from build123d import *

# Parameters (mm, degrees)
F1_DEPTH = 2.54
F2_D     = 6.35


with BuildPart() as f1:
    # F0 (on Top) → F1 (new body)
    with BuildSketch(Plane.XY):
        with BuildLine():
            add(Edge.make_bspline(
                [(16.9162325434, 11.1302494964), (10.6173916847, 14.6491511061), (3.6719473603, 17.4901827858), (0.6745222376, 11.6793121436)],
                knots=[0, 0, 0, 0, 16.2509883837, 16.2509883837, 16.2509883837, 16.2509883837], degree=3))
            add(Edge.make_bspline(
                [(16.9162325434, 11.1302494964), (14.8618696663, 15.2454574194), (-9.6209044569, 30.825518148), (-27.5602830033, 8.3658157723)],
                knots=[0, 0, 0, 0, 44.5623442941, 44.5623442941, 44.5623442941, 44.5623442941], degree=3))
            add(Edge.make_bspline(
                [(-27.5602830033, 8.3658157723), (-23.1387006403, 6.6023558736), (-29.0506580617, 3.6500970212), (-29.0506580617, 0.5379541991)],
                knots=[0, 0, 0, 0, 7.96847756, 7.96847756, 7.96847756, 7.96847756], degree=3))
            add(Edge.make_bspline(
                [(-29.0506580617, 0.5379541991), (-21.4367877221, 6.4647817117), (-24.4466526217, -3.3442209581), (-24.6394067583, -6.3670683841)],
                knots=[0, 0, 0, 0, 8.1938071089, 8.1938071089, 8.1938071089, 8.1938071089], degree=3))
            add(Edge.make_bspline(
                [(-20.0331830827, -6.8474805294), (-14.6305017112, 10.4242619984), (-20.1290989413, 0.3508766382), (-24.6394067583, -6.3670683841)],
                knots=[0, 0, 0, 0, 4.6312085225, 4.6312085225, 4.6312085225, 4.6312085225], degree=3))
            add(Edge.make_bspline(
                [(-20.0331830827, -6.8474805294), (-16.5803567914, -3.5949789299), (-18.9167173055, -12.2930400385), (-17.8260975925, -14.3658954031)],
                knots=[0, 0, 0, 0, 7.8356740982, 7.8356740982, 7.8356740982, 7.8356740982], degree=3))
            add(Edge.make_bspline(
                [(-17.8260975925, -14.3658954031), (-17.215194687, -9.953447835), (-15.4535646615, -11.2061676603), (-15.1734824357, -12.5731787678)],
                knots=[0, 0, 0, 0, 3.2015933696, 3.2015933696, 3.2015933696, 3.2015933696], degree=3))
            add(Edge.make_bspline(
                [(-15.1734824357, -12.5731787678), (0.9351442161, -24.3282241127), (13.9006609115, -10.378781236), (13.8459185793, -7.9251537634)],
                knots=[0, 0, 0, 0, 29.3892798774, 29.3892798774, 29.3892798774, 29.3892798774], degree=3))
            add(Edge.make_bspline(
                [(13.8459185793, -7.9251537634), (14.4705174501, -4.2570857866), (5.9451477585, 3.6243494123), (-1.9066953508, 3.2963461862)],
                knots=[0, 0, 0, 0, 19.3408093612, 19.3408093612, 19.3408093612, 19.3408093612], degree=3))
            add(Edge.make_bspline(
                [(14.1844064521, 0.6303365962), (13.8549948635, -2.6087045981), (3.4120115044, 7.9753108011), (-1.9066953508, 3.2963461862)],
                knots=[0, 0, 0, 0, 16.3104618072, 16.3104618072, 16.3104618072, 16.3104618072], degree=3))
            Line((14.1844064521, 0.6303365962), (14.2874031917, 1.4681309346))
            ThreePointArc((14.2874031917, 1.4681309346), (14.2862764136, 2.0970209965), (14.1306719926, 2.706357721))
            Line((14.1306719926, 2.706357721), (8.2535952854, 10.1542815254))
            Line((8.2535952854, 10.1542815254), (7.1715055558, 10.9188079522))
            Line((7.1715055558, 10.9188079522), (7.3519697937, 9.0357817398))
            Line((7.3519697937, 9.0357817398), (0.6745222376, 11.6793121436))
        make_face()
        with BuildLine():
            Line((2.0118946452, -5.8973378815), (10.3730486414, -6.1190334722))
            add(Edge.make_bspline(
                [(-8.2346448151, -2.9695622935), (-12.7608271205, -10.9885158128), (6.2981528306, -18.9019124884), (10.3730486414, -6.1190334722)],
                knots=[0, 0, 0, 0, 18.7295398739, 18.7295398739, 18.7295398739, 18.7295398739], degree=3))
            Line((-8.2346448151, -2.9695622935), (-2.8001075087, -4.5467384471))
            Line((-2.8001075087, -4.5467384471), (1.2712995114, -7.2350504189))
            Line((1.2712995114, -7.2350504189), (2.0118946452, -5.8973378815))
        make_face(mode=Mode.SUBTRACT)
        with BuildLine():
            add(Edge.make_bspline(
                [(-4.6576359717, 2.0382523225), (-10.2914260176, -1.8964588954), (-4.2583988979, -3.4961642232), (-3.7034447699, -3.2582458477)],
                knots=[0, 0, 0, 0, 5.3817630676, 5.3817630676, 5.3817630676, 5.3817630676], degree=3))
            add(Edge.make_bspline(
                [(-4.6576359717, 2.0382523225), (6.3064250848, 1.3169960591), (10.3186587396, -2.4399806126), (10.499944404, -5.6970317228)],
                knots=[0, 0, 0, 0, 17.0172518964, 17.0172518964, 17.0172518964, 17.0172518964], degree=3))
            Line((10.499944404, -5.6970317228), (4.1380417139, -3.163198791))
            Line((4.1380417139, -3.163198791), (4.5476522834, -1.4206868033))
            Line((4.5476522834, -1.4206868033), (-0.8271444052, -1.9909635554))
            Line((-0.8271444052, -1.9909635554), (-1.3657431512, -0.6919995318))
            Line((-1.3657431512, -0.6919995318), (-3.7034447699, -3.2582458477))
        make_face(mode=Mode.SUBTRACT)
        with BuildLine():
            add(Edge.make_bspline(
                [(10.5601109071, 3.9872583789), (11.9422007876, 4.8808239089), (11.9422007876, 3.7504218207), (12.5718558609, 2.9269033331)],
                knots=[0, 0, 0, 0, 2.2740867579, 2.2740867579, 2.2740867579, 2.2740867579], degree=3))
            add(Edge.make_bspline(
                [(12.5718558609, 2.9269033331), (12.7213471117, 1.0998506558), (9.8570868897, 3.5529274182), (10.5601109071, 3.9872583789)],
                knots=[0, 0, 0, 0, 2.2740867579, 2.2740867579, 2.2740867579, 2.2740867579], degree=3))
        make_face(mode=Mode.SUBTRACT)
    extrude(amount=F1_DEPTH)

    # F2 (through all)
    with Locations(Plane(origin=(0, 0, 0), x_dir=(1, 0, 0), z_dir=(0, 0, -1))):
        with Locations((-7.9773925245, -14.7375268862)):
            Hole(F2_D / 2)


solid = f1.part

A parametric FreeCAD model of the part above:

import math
import FreeCAD as App
import Part
import Sketcher

V = App.Vector
Q = App.Units.Quantity

doc = App.newDocument("Part")
params = doc.addObject("Spreadsheet::Sheet", "Params")
for row, (alias, value) in enumerate([
    ("sketch1_radius", "0.1 in"),
    ("pad1_length", "0.1 in"),
    ("sketch2_diameter", "0.25 in"),
    ("hole_diameter", "0.25 in"),
], start=1):
    params.set(f"A{row}", alias)
    params.set(f"B{row}", "=" + value)
    params.setAlias(f"B{row}", alias)

body = doc.addObject("PartDesign::Body", "Body")

# Sketch on XY plane
sketch1 = body.newObject("Sketcher::SketchObject", "Sketch")
sketch1.AttachmentSupport = (doc.getObject("XY_Plane"), [""])
sketch1.MapMode = "FlatFace"
sketch1.addGeometry(Part.BSplineCurve([V(16.916233, 11.130249, 0), V(10.617392, 14.649151, 0), V(3.671947, 17.490183, 0), V(0.674522, 11.679312, 0)], [4, 4], [0, 16.250988384], False, 3, [1, 1, 1, 1], False), False)
sketch1.addGeometry(Part.BSplineCurve([V(16.916233, 11.130249, 0), V(14.86187, 15.245457, 0), V(-9.620904, 30.825518, 0), V(-27.560283, 8.365816, 0)], [4, 4], [0, 44.562344294], False, 3, [1, 1, 1, 1], False), False)
sketch1.addGeometry(Part.BSplineCurve([V(-27.560283, 8.365816, 0), V(-23.138701, 6.602356, 0), V(-29.050658, 3.650097, 0), V(-29.050658, 0.537954, 0)], [4, 4], [0, 7.96847756], False, 3, [1, 1, 1, 1], False), False)
sketch1.addGeometry(Part.BSplineCurve([V(-29.050658, 0.537954, 0), V(-21.436788, 6.464782, 0), V(-24.446653, -3.344221, 0), V(-24.639407, -6.367068, 0)], [4, 4], [0, 8.193807109], False, 3, [1, 1, 1, 1], False), False)
sketch1.addGeometry(Part.BSplineCurve([V(-20.033183, -6.847481, 0), V(-14.630502, 10.424262, 0), V(-20.129099, 0.350877, 0), V(-24.639407, -6.367068, 0)], [4, 4], [0, 4.631208522], False, 3, [1, 1, 1, 1], False), False)
sketch1.addGeometry(Part.BSplineCurve([V(-20.033183, -6.847481, 0), V(-16.580357, -3.594979, 0), V(-18.916717, -12.29304, 0), V(-17.826098, -14.365895, 0)], [4, 4], [0, 7.835674098], False, 3, [1, 1, 1, 1], False), False)
sketch1.addGeometry(Part.BSplineCurve([V(-17.826098, -14.365895, 0), V(-17.215195, -9.953448, 0), V(-15.453565, -11.206168, 0), V(-15.173482, -12.573179, 0)], [4, 4], [0, 3.20159337], False, 3, [1, 1, 1, 1], False), False)
sketch1.addGeometry(Part.BSplineCurve([V(-15.173482, -12.573179, 0), V(0.935144, -24.328224, 0), V(13.900661, -10.378781, 0), V(13.845919, -7.925154, 0)], [4, 4], [0, 29.389279877], False, 3, [1, 1, 1, 1], False), False)
sketch1.addGeometry(Part.BSplineCurve([V(13.845919, -7.925154, 0), V(14.470517, -4.257086, 0), V(5.945148, 3.624349, 0), V(-1.906695, 3.296346, 0)], [4, 4], [0, 19.340809361], False, 3, [1, 1, 1, 1], False), False)
sketch1.addGeometry(Part.BSplineCurve([V(14.184406, 0.630337, 0), V(13.854995, -2.608705, 0), V(3.412012, 7.975311, 0), V(-1.906695, 3.296346, 0)], [4, 4], [0, 16.310461807], False, 3, [1, 1, 1, 1], False), False)
sketch1.addGeometry(Part.LineSegment(V(14.184406, 0.630337, 0), V(14.287403, 1.468131, 0)), False)
sketch1.addGeometry(Part.ArcOfCircle(Part.Circle(V(11.766383, 1.77806, 0), V(0, 0, 1), 2.54), math.radians(-7.008659), math.radians(21.436603)), False)
sketch1.addGeometry(Part.LineSegment(V(14.130672, 2.706358, 0), V(8.253595, 10.154282, 0)), False)
sketch1.addGeometry(Part.LineSegment(V(8.253595, 10.154282, 0), V(7.171506, 10.918808, 0)), False)
sketch1.addGeometry(Part.LineSegment(V(7.171506, 10.918808, 0), V(7.35197, 9.035782, 0)), False)
sketch1.addGeometry(Part.LineSegment(V(7.35197, 9.035782, 0), V(0.674522, 11.679312, 0)), False)
sketch1.addGeometry(Part.LineSegment(V(2.011895, -5.897338, 0), V(10.373049, -6.119033, 0)), False)
sketch1.addGeometry(Part.BSplineCurve([V(-8.234645, -2.969562, 0), V(-12.760827, -10.988516, 0), V(6.298153, -18.901912, 0), V(10.373049, -6.119033, 0)], [4, 4], [0, 18.729539874], False, 3, [1, 1, 1, 1], False), False)
sketch1.addGeometry(Part.LineSegment(V(-8.234645, -2.969562, 0), V(-2.800108, -4.546738, 0)), False)
sketch1.addGeometry(Part.LineSegment(V(-2.800108, -4.546738, 0), V(1.2713, -7.23505, 0)), False)
sketch1.addGeometry(Part.LineSegment(V(1.2713, -7.23505, 0), V(2.011895, -5.897338, 0)), False)
sketch1.addGeometry(Part.BSplineCurve([V(-4.657636, 2.038252, 0), V(6.306425, 1.316996, 0), V(10.318659, -2.439981, 0), V(10.499944, -5.697032, 0)], [4, 4], [0, 17.017251896], False, 3, [1, 1, 1, 1], False), False)
sketch1.addGeometry(Part.LineSegment(V(10.499944, -5.697032, 0), V(4.138042, -3.163199, 0)), False)
sketch1.addGeometry(Part.LineSegment(V(4.138042, -3.163199, 0), V(4.547652, -1.420687, 0)), False)
sketch1.addGeometry(Part.LineSegment(V(4.547652, -1.420687, 0), V(-0.827144, -1.990964, 0)), False)
sketch1.addGeometry(Part.LineSegment(V(-0.827144, -1.990964, 0), V(-1.365743, -0.692, 0)), False)
sketch1.addGeometry(Part.LineSegment(V(-1.365743, -0.692, 0), V(-3.703445, -3.258246, 0)), False)
sketch1.addGeometry(Part.BSplineCurve([V(-4.657636, 2.038252, 0), V(-10.291426, -1.896459, 0), V(-4.258399, -3.496164, 0), V(-3.703445, -3.258246, 0)], [4, 4], [0, 5.381763068], False, 3, [1, 1, 1, 1], False), False)
sketch1.addGeometry(Part.BSplineCurve([V(10.560111, 3.987258, 0), V(11.942201, 4.880824, 0), V(11.942201, 3.750422, 0), V(12.571856, 2.926903, 0)], [4, 4], [0, 2.274086758], False, 3, [1, 1, 1, 1], False), False)
sketch1.addGeometry(Part.BSplineCurve([V(12.571856, 2.926903, 0), V(12.721347, 1.099851, 0), V(9.857087, 3.552927, 0), V(10.560111, 3.987258, 0)], [4, 4], [0, 2.274086758], False, 3, [1, 1, 1, 1], False), False)
sketch1.addConstraint(Sketcher.Constraint("Block", 0))
sketch1.addConstraint(Sketcher.Constraint("Block", 1))
sketch1.addConstraint(Sketcher.Constraint("Block", 2))
sketch1.addConstraint(Sketcher.Constraint("Block", 3))
sketch1.addConstraint(Sketcher.Constraint("Block", 4))
sketch1.addConstraint(Sketcher.Constraint("Block", 5))
sketch1.addConstraint(Sketcher.Constraint("Block", 6))
sketch1.addConstraint(Sketcher.Constraint("Block", 7))
sketch1.addConstraint(Sketcher.Constraint("Block", 8))
sketch1.addConstraint(Sketcher.Constraint("Block", 9))
sketch1.addConstraint(Sketcher.Constraint("Block", 17))
sketch1.addConstraint(Sketcher.Constraint("Block", 21))
sketch1.addConstraint(Sketcher.Constraint("Block", 27))
sketch1.addConstraint(Sketcher.Constraint("Block", 28))
sketch1.addConstraint(Sketcher.Constraint("Block", 29))
sketch1.addConstraint(Sketcher.Constraint("Coincident", 9, 1, 10, 1))
sketch1.addConstraint(Sketcher.Constraint("Tangent", 10, 2, 11, 1))
sketch1.addConstraint(Sketcher.Constraint("Coincident", 11, 2, 12, 1))
sketch1.addConstraint(Sketcher.Constraint("Coincident", 12, 2, 13, 1))
sketch1.addConstraint(Sketcher.Constraint("Coincident", 13, 2, 14, 1))
sketch1.addConstraint(Sketcher.Constraint("Coincident", 14, 2, 15, 1))
sketch1.addConstraint(Sketcher.Constraint("Coincident", 15, 2, 0, 2))
sketch1.addConstraint(Sketcher.Constraint("Coincident", 16, 2, 17, 2))
sketch1.addConstraint(Sketcher.Constraint("Coincident", 17, 1, 18, 1))
sketch1.addConstraint(Sketcher.Constraint("Coincident", 18, 2, 19, 1))
sketch1.addConstraint(Sketcher.Constraint("Coincident", 19, 2, 20, 1))
sketch1.addConstraint(Sketcher.Constraint("Coincident", 20, 2, 16, 1))
sketch1.addConstraint(Sketcher.Constraint("Coincident", 21, 2, 22, 1))
sketch1.addConstraint(Sketcher.Constraint("Coincident", 22, 2, 23, 1))
sketch1.addConstraint(Sketcher.Constraint("Coincident", 23, 2, 24, 1))
sketch1.addConstraint(Sketcher.Constraint("Coincident", 24, 2, 25, 1))
sketch1.addConstraint(Sketcher.Constraint("Coincident", 25, 2, 26, 1))
sketch1.addConstraint(Sketcher.Constraint("Coincident", 26, 2, 27, 2))
sketch1.addConstraint(Sketcher.Constraint("Radius", 11, Q("0.1 in")))
sketch1.addConstraint(Sketcher.Constraint("Distance", 10, Q("0.844102 mm")))
sketch1.addConstraint(Sketcher.Constraint("Distance", 25, Q("1.406199 mm")))
sketch1.addConstraint(Sketcher.Constraint("DistanceX", -1, 1, 19, 2, Q("1.2713 mm")))
sketch1.addConstraint(Sketcher.Constraint("DistanceY", 22, 2, -1, 1, Q("3.163199 mm")))
sketch1.addConstraint(Sketcher.Constraint("DistanceY", 25, 2, -1, 1, Q("0.692 mm")))
sketch1.addConstraint(Sketcher.Constraint("DistanceY", 14, 2, 12, 2, Q("1.1185 mm")))
sketch1.addConstraint(Sketcher.Constraint("DistanceY", 18, 2, 11, 3, Q("6.324799 mm")))
sketch1.addConstraint(Sketcher.Constraint("DistanceY", 20, 2, 18, 2, Q("1.350599 mm")))
sketch1.addConstraint(Sketcher.Constraint("DistanceX", 25, 2, 24, 2, Q("0.538599 mm")))
sketch1.addConstraint(Sketcher.Constraint("DistanceX", 26, 2, 24, 2, Q("2.8763 mm")))
sketch1.addConstraint(Sketcher.Constraint("Distance", 18, Q("5.65877 mm")))
sketch1.addConstraint(Sketcher.Constraint("Distance", 19, Q("4.87887 mm")))
sketch1.addConstraint(Sketcher.Constraint("Distance", 23, Q("1.790008 mm")))
sketch1.addConstraint(Sketcher.Constraint("DistanceY", -1, 1, 11, 3, Q("1.77806 mm")))
sketch1.addConstraint(Sketcher.Constraint("DistanceX", -1, 1, 11, 2, Q("14.130672 mm")))
sketch1.addConstraint(Sketcher.Constraint("DistanceY", -1, 1, 12, 2, Q("10.154282 mm")))
sketch1.addConstraint(Sketcher.Constraint("DistanceX", -1, 1, 14, 2, Q("7.35197 mm")))
sketch1.addConstraint(Sketcher.Constraint("DistanceX", -1, 1, 22, 2, Q("4.138042 mm")))
sketch1.addConstraint(Sketcher.Constraint("DistanceX", 13, 2, 12, 2, Q("1.08209 mm")))
sketch1.addConstraint(Sketcher.Constraint("DistanceY", 11, 2, 13, 2, Q("8.21245 mm")))
sketch1.addConstraint(Sketcher.Constraint("DistanceX", 20, 2, 11, 3, Q("9.754488 mm")))
sketch1.addConstraint(Sketcher.Constraint("DistanceX", 22, 2, 23, 2, Q("0.409611 mm")))
sketch1.addConstraint(Sketcher.Constraint("Distance", 12, Q("9.487444 mm")))
sketch1.setExpression("Constraints[33]", "Params.sketch1_radius")
pad1 = body.newObject("PartDesign::Pad", "Pad")
pad1.Profile = sketch1
pad1.setExpression("Length", "Params.pad1_length")

# Sketch on XY plane
sketch2 = body.newObject("Sketcher::SketchObject", "Sketch001")
sketch2.AttachmentSupport = (doc.getObject("XY_Plane"), [""])
sketch2.MapMode = "FlatFace"
sketch2.addGeometry(Part.Circle(V(-8, 14.7, 0), V(0, 0, 1), 3.2), False)
sketch2.addConstraint(Sketcher.Constraint("Diameter", 0, Q("0.25 in")))
sketch2.addConstraint(Sketcher.Constraint("DistanceX", 0, 3, -1, 1, Q("7.977393 mm")))
sketch2.addConstraint(Sketcher.Constraint("DistanceY", -1, 1, 0, 3, Q("14.737527 mm")))
sketch2.setExpression("Constraints[0]", "Params.sketch2_diameter")
doc.recompute()
hole = body.newObject("PartDesign::Hole", "Hole")
hole.Profile = sketch2
hole.ThreadType = "None"
hole.setExpression("Diameter", "Params.hole_diameter")
hole.DepthType = "ThroughAll"
hole.Reversed = True

doc.recompute()
